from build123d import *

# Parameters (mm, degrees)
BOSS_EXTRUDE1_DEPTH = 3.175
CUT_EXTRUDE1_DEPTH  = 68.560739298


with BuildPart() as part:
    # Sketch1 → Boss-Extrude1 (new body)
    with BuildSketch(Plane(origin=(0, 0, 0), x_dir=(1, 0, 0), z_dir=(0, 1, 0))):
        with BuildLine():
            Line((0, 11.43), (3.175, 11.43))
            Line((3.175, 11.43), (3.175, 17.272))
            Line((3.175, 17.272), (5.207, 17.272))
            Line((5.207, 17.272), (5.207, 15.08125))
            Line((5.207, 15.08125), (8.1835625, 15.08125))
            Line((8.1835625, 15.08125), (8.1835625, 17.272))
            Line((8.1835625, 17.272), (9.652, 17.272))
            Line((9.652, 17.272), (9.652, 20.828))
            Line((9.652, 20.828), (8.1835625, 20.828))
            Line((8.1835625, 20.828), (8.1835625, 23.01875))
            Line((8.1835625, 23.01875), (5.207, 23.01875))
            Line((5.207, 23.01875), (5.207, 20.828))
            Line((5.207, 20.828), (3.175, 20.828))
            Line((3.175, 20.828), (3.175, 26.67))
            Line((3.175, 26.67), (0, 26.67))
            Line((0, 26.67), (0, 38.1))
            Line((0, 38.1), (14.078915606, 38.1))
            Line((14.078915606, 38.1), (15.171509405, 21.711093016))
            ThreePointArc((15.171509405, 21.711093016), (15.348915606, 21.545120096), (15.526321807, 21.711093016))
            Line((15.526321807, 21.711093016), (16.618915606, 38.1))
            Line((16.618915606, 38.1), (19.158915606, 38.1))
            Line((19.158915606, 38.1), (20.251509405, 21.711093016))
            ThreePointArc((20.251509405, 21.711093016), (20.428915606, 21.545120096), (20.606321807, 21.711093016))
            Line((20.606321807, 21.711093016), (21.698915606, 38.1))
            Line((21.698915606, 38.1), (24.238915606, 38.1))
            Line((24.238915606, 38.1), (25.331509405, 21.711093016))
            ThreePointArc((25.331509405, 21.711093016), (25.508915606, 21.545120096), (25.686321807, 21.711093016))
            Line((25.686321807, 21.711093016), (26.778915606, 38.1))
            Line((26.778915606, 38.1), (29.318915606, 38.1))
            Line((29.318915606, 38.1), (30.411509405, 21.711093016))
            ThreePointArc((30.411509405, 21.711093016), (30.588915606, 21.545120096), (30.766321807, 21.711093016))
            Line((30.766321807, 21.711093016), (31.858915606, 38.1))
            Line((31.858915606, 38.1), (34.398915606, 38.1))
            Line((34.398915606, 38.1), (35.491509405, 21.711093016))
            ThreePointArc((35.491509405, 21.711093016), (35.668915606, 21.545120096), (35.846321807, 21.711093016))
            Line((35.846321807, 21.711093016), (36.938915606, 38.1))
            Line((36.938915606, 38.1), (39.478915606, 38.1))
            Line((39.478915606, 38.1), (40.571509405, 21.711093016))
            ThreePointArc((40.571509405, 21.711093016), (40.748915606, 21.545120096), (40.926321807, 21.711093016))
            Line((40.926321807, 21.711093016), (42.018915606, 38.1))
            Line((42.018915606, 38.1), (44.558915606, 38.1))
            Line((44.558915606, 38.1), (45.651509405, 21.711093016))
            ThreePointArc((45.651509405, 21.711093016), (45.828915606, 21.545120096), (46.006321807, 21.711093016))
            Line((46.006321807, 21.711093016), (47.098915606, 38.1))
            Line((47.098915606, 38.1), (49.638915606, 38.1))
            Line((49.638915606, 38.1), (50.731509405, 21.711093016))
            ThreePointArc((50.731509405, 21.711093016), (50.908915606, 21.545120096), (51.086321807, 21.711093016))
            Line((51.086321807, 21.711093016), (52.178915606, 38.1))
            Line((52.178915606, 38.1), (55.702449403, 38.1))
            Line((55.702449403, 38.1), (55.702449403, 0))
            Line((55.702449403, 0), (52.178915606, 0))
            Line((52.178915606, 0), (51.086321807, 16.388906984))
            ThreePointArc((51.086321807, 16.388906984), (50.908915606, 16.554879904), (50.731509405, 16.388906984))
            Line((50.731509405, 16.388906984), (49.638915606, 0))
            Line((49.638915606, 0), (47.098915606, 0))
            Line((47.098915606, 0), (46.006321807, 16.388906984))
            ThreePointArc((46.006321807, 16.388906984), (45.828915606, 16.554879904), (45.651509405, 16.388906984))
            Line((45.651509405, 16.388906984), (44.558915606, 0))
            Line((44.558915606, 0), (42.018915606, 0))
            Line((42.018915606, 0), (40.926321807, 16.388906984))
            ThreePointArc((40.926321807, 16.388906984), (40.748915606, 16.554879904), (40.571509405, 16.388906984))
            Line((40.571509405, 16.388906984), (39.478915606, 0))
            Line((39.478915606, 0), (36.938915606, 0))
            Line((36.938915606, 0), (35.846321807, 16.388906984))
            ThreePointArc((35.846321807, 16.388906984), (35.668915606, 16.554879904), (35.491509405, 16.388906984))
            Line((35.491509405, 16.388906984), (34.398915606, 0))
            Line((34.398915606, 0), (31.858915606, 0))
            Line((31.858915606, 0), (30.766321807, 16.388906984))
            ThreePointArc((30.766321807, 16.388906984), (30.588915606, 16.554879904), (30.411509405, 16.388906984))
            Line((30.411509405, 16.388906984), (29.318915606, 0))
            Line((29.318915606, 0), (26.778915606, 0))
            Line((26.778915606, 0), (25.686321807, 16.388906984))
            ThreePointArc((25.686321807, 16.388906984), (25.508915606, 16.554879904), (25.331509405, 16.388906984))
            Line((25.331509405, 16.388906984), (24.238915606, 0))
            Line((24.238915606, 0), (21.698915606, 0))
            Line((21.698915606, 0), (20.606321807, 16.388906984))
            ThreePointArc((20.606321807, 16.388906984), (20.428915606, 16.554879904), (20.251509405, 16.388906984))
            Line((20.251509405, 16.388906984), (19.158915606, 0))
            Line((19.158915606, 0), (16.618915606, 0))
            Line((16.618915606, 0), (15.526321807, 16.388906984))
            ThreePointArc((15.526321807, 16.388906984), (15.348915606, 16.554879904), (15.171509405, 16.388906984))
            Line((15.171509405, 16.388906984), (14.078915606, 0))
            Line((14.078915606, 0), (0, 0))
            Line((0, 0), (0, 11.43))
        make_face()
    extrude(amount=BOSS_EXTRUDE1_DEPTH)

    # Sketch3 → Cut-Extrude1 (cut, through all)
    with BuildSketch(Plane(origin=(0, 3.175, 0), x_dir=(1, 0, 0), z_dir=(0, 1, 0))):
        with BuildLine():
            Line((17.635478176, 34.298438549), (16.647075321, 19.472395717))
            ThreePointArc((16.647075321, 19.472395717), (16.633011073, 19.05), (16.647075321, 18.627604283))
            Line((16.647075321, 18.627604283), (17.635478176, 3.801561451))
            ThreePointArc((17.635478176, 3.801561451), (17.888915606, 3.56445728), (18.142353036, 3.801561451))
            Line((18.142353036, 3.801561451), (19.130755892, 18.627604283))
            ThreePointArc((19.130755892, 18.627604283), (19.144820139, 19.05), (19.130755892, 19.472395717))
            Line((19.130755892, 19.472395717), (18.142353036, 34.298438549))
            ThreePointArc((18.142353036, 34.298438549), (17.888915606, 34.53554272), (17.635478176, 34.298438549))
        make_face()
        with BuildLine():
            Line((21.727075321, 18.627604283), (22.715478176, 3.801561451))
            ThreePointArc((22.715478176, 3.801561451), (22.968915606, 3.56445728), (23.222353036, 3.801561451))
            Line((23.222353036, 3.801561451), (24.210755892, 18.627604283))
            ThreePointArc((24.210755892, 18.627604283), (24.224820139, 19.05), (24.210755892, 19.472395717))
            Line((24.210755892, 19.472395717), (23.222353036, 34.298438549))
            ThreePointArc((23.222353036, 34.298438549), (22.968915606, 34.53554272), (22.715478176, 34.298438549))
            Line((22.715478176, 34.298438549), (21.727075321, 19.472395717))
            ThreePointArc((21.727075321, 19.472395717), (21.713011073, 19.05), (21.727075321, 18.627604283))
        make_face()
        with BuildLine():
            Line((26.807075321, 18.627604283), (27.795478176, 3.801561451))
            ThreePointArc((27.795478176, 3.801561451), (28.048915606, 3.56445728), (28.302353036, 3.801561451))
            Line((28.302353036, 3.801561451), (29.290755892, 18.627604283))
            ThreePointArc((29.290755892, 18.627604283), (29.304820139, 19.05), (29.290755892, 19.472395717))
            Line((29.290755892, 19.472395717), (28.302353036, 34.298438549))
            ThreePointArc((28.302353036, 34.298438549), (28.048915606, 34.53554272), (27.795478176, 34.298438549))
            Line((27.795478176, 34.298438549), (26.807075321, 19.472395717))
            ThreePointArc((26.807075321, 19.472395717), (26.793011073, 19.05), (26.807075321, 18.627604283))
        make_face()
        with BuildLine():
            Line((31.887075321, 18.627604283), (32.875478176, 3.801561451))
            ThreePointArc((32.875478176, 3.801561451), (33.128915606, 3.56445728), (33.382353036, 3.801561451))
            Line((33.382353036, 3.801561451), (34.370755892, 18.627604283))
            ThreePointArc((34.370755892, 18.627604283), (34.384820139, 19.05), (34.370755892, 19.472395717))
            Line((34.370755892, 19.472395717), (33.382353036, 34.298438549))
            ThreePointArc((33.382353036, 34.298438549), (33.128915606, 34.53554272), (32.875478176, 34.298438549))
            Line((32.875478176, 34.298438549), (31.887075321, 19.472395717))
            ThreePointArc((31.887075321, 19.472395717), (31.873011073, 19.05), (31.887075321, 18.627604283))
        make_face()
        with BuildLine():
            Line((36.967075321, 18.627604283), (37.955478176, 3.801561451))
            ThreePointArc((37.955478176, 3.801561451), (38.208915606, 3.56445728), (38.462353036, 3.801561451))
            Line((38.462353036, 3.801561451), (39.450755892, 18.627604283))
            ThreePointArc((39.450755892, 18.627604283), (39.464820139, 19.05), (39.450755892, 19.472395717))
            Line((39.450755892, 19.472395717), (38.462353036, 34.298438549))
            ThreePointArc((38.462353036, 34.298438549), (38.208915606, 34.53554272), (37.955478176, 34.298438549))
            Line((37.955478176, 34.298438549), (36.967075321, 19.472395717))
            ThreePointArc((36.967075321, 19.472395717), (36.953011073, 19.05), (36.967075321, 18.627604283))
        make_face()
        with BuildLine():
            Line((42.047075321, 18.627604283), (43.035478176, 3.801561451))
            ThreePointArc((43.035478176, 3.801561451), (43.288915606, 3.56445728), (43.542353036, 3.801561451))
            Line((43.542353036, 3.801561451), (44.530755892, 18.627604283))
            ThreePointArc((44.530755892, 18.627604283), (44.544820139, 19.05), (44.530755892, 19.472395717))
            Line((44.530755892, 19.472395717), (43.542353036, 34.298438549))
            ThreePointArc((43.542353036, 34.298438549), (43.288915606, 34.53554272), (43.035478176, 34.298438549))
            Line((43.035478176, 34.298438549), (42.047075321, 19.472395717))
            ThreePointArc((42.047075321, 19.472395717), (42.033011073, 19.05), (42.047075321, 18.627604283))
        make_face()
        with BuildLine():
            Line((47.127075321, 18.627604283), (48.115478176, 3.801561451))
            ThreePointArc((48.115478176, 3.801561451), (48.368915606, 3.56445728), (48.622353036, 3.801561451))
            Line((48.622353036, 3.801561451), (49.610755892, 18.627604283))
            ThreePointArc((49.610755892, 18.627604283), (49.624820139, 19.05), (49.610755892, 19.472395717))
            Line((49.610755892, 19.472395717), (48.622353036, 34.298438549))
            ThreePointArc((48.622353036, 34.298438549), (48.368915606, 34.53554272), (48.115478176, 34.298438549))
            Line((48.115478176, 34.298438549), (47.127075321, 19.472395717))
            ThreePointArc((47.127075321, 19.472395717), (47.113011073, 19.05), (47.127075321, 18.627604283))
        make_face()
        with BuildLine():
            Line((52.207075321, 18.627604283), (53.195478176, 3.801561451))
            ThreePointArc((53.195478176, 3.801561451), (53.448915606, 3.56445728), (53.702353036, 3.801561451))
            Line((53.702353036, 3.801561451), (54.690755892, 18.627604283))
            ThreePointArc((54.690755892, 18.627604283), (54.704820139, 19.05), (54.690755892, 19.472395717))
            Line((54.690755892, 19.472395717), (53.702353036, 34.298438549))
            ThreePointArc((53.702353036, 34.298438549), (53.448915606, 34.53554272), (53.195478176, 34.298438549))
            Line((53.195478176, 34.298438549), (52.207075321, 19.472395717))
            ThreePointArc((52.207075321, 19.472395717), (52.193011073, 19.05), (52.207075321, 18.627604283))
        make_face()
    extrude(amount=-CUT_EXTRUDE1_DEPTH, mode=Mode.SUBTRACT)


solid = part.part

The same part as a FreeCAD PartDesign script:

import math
import FreeCAD as App
import Part
import Sketcher
from FreeCAD import Vector
Q = App.Units.Quantity

doc = App.newDocument("Part")
body = doc.addObject("PartDesign::Body", "Body")

# Sketch on XZ plane
sketch1 = doc.addObject("Sketcher::SketchObject", "Sketch")
body.addObject(sketch1)
sketch1.AttachmentSupport = (doc.XZ_Plane, [""])
sketch1.MapMode = "FlatFace"
sketch1.addGeometry([
    Part.LineSegment(Vector(3.17, -11.43, 0), Vector(0, -11.43, 0)),  # 0
    Part.LineSegment(Vector(0, -11.43, 0), Vector(0, 0, 0)),  # 1
    Part.LineSegment(Vector(0, 0, 0), Vector(14.08, 0, 0)),  # 2
    Part.LineSegment(Vector(14.08, 0, 0), Vector(15.17, -16.39, 0)),  # 3
    Part.ArcOfCircle(Part.Circle(Vector(15.35, -16.38, 0), Vector(0, 0, 1), 0.18), math.radians(-176), math.radians(-4)),  # 4
    Part.LineSegment(Vector(15.53, -16.39, 0), Vector(16.62, 0, 0)),  # 5
    Part.LineSegment(Vector(16.62, 0, 0), Vector(19.16, 0, 0)),  # 6
    Part.LineSegment(Vector(19.16, 0, 0), Vector(20.25, -16.39, 0)),  # 7
    Part.ArcOfCircle(Part.Circle(Vector(20.43, -16.38, 0), Vector(0, 0, 1), 0.18), math.radians(-176), math.radians(-4)),  # 8
    Part.LineSegment(Vector(20.61, -16.39, 0), Vector(21.7, 0, 0)),  # 9
    Part.LineSegment(Vector(21.7, 0, 0), Vector(24.24, 0, 0)),  # 10
    Part.LineSegment(Vector(24.24, 0, 0), Vector(25.33, -16.39, 0)),  # 11
    Part.ArcOfCircle(Part.Circle(Vector(25.51, -16.38, 0), Vector(0, 0, 1), 0.18), math.radians(-176), math.radians(-4)),  # 12
    Part.LineSegment(Vector(25.69, -16.39, 0), Vector(26.78, 0, 0)),  # 13
    Part.LineSegment(Vector(26.78, 0, 0), Vector(29.32, 0, 0)),  # 14
    Part.LineSegment(Vector(29.32, 0, 0), Vector(30.41, -16.39, 0)),  # 15
    Part.ArcOfCircle(Part.Circle(Vector(30.59, -16.38, 0), Vector(0, 0, 1), 0.18), math.radians(-176), math.radians(-4)),  # 16
    Part.LineSegment(Vector(30.77, -16.39, 0), Vector(31.86, 0, 0)),  # 17
    Part.LineSegment(Vector(31.86, 0, 0), Vector(34.4, 0, 0)),  # 18
    Part.LineSegment(Vector(34.4, 0, 0), Vector(35.49, -16.39, 0)),  # 19
    Part.ArcOfCircle(Part.Circle(Vector(35.67, -16.38, 0), Vector(0, 0, 1), 0.18), math.radians(-176), math.radians(-4)),  # 20
    Part.LineSegment(Vector(35.85, -16.39, 0), Vector(36.94, 0, 0)),  # 21
    Part.LineSegment(Vector(36.94, 0, 0), Vector(39.48, 0, 0)),  # 22
    Part.LineSegment(Vector(39.48, 0, 0), Vector(40.57, -16.39, 0)),  # 23
    Part.ArcOfCircle(Part.Circle(Vector(40.75, -16.38, 0), Vector(0, 0, 1), 0.18), math.radians(-176), math.radians(-4)),  # 24
    Part.LineSegment(Vector(40.93, -16.39, 0), Vector(42.02, 0, 0)),  # 25
    Part.LineSegment(Vector(42.02, 0, 0), Vector(44.56, 0, 0)),  # 26
    Part.LineSegment(Vector(44.56, 0, 0), Vector(45.65, -16.39, 0)),  # 27
    Part.ArcOfCircle(Part.Circle(Vector(45.83, -16.38, 0), Vector(0, 0, 1), 0.18), math.radians(-176), math.radians(-4)),  # 28
    Part.LineSegment(Vector(46.01, -16.39, 0), Vector(47.1, 0, 0)),  # 29
    Part.LineSegment(Vector(47.1, 0, 0), Vector(49.64, 0, 0)),  # 30
    Part.LineSegment(Vector(49.64, 0, 0), Vector(50.73, -16.39, 0)),  # 31
    Part.ArcOfCircle(Part.Circle(Vector(50.91, -16.38, 0), Vector(0, 0, 1), 0.18), math.radians(-176), math.radians(-4)),  # 32
    Part.LineSegment(Vector(51.09, -16.39, 0), Vector(52.18, 0, 0)),  # 33
    Part.LineSegment(Vector(52.18, 0, 0), Vector(55.7, 0, 0)),  # 34
    Part.LineSegment(Vector(55.7, 0, 0), Vector(55.7, -38.1, 0)),  # 35
    Part.LineSegment(Vector(55.7, -38.1, 0), Vector(52.18, -38.1, 0)),  # 36
    Part.LineSegment(Vector(52.18, -38.1, 0), Vector(51.09, -21.71, 0)),  # 37
    Part.ArcOfCircle(Part.Circle(Vector(50.91, -21.72, 0), Vector(0, 0, 1), 0.18), math.radians(4), math.radians(176)),  # 38
    Part.LineSegment(Vector(50.73, -21.71, 0), Vector(49.64, -38.1, 0)),  # 39
    Part.LineSegment(Vector(49.64, -38.1, 0), Vector(47.1, -38.1, 0)),  # 40
    Part.LineSegment(Vector(47.1, -38.1, 0), Vector(46.01, -21.71, 0)),  # 41
    Part.ArcOfCircle(Part.Circle(Vector(45.83, -21.72, 0), Vector(0, 0, 1), 0.18), math.radians(4), math.radians(176)),  # 42
    Part.LineSegment(Vector(45.65, -21.71, 0), Vector(44.56, -38.1, 0)),  # 43
    Part.LineSegment(Vector(44.56, -38.1, 0), Vector(42.02, -38.1, 0)),  # 44
    Part.LineSegment(Vector(42.02, -38.1, 0), Vector(40.93, -21.71, 0)),  # 45
    Part.ArcOfCircle(Part.Circle(Vector(40.75, -21.72, 0), Vector(0, 0, 1), 0.18), math.radians(4), math.radians(176)),  # 46
    Part.LineSegment(Vector(40.57, -21.71, 0), Vector(39.48, -38.1, 0)),  # 47
    Part.LineSegment(Vector(39.48, -38.1, 0), Vector(36.94, -38.1, 0)),  # 48
    Part.LineSegment(Vector(36.94, -38.1, 0), Vector(35.85, -21.71, 0)),  # 49
    Part.ArcOfCircle(Part.Circle(Vector(35.67, -21.72, 0), Vector(0, 0, 1), 0.18), math.radians(4), math.radians(176)),  # 50
    Part.LineSegment(Vector(35.49, -21.71, 0), Vector(34.4, -38.1, 0)),  # 51
    Part.LineSegment(Vector(34.4, -38.1, 0), Vector(31.86, -38.1, 0)),  # 52
    Part.LineSegment(Vector(31.86, -38.1, 0), Vector(30.77, -21.71, 0)),  # 53
    Part.ArcOfCircle(Part.Circle(Vector(30.59, -21.72, 0), Vector(0, 0, 1), 0.18), math.radians(4), math.radians(176)),  # 54
    Part.LineSegment(Vector(30.41, -21.71, 0), Vector(29.32, -38.1, 0)),  # 55
    Part.LineSegment(Vector(29.32, -38.1, 0), Vector(26.78, -38.1, 0)),  # 56
    Part.LineSegment(Vector(26.78, -38.1, 0), Vector(25.69, -21.71, 0)),  # 57
    Part.ArcOfCircle(Part.Circle(Vector(25.51, -21.72, 0), Vector(0, 0, 1), 0.18), math.radians(4), math.radians(176)),  # 58
    Part.LineSegment(Vector(25.33, -21.71, 0), Vector(24.24, -38.1, 0)),  # 59
    Part.LineSegment(Vector(24.24, -38.1, 0), Vector(21.7, -38.1, 0)),  # 60
    Part.LineSegment(Vector(21.7, -38.1, 0), Vector(20.61, -21.71, 0)),  # 61
    Part.ArcOfCircle(Part.Circle(Vector(20.43, -21.72, 0), Vector(0, 0, 1), 0.18), math.radians(4), math.radians(176)),  # 62
    Part.LineSegment(Vector(20.25, -21.71, 0), Vector(19.16, -38.1, 0)),  # 63
    Part.LineSegment(Vector(19.16, -38.1, 0), Vector(16.62, -38.1, 0)),  # 64
    Part.LineSegment(Vector(16.62, -38.1, 0), Vector(15.53, -21.71, 0)),  # 65
    Part.ArcOfCircle(Part.Circle(Vector(15.35, -21.72, 0), Vector(0, 0, 1), 0.18), math.radians(4), math.radians(176)),  # 66
    Part.LineSegment(Vector(15.17, -21.71, 0), Vector(14.08, -38.1, 0)),  # 67
    Part.LineSegment(Vector(14.08, -38.1, 0), Vector(0, -38.1, 0)),  # 68
    Part.LineSegment(Vector(0, -38.1, 0), Vector(0, -26.67, 0)),  # 69
    Part.LineSegment(Vector(0, -26.67, 0), Vector(3.17, -26.67, 0)),  # 70
    Part.LineSegment(Vector(3.17, -26.67, 0), Vector(3.17, -20.83, 0)),  # 71
    Part.LineSegment(Vector(3.17, -20.83, 0), Vector(5.21, -20.83, 0)),  # 72
    Part.LineSegment(Vector(5.21, -20.83, 0), Vector(5.21, -23.02, 0)),  # 73
    Part.LineSegment(Vector(5.21, -23.02, 0), Vector(8.18, -23.02, 0)),  # 74
    Part.LineSegment(Vector(8.18, -23.02, 0), Vector(8.18, -20.83, 0)),  # 75
    Part.LineSegment(Vector(8.18, -20.83, 0), Vector(9.65, -20.83, 0)),  # 76
    Part.LineSegment(Vector(9.65, -20.83, 0), Vector(9.65, -17.27, 0)),  # 77
    Part.LineSegment(Vector(9.65, -17.27, 0), Vector(8.18, -17.27, 0)),  # 78
    Part.LineSegment(Vector(8.18, -17.27, 0), Vector(8.18, -15.08, 0)),  # 79
    Part.LineSegment(Vector(8.18, -15.08, 0), Vector(5.21, -15.08, 0)),  # 80
    Part.LineSegment(Vector(5.21, -15.08, 0), Vector(5.21, -17.27, 0)),  # 81
    Part.LineSegment(Vector(5.21, -17.27, 0), Vector(3.17, -17.27, 0)),  # 82
    Part.LineSegment(Vector(3.17, -17.27, 0), Vector(3.17, -11.43, 0)),  # 83
], False)
sketch1.addConstraint([
    Sketcher.Constraint("Coincident", 0, 2, 1, 1),
    Sketcher.Constraint("Coincident", 1, 2, 2, 1),
    Sketcher.Constraint("Coincident", 2, 2, 3, 1),
    Sketcher.Constraint("Tangent", 3, 2, 4, 1),
    Sketcher.Constraint("Tangent", 4, 2, 5, 1),
    Sketcher.Constraint("Coincident", 5, 2, 6, 1),
    Sketcher.Constraint("Coincident", 6, 2, 7, 1),
    Sketcher.Constraint("Tangent", 7, 2, 8, 1),
    Sketcher.Constraint("Tangent", 8, 2, 9, 1),
    Sketcher.Constraint("Coincident", 9, 2, 10, 1),
    Sketcher.Constraint("Coincident", 10, 2, 11, 1),
    Sketcher.Constraint("Tangent", 11, 2, 12, 1),
    Sketcher.Constraint("Tangent", 12, 2, 13, 1),
    Sketcher.Constraint("Coincident", 13, 2, 14, 1),
    Sketcher.Constraint("Coincident", 14, 2, 15, 1),
    Sketcher.Constraint("Tangent", 15, 2, 16, 1),
    Sketcher.Constraint("Tangent", 16, 2, 17, 1),
    Sketcher.Constraint("Coincident", 17, 2, 18, 1),
    Sketcher.Constraint("Coincident", 18, 2, 19, 1),
    Sketcher.Constraint("Tangent", 19, 2, 20, 1),
    Sketcher.Constraint("Tangent", 20, 2, 21, 1),
    Sketcher.Constraint("Coincident", 21, 2, 22, 1),
    Sketcher.Constraint("Coincident", 22, 2, 23, 1),
    Sketcher.Constraint("Tangent", 23, 2, 24, 1),
    Sketcher.Constraint("Tangent", 24, 2, 25, 1),
    Sketcher.Constraint("Coincident", 25, 2, 26, 1),
    Sketcher.Constraint("Coincident", 26, 2, 27, 1),
    Sketcher.Constraint("Tangent", 27, 2, 28, 1),
    Sketcher.Constraint("Tangent", 28, 2, 29, 1),
    Sketcher.Constraint("Coincident", 29, 2, 30, 1),
    Sketcher.Constraint("Coincident", 30, 2, 31, 1),
    Sketcher.Constraint("Tangent", 31, 2, 32, 1),
    Sketcher.Constraint("Tangent", 32, 2, 33, 1),
    Sketcher.Constraint("Coincident", 33, 2, 34, 1),
    Sketcher.Constraint("Coincident", 34, 2, 35, 1),
    Sketcher.Constraint("Coincident", 35, 2, 36, 1),
    Sketcher.Constraint("Coincident", 36, 2, 37, 1),
    Sketcher.Constraint("Tangent", 37, 2, 38, 1),
    Sketcher.Constraint("Tangent", 38, 2, 39, 1),
    Sketcher.Constraint("Coincident", 39, 2, 40, 1),
    Sketcher.Constraint("Coincident", 40, 2, 41, 1),
    Sketcher.Constraint("Tangent", 41, 2, 42, 1),
    Sketcher.Constraint("Tangent", 42, 2, 43, 1),
    Sketcher.Constraint("Coincident", 43, 2, 44, 1),
    Sketcher.Constraint("Coincident", 44, 2, 45, 1),
    Sketcher.Constraint("Tangent", 45, 2, 46, 1),
    Sketcher.Constraint("Tangent", 46, 2, 47, 1),
    Sketcher.Constraint("Coincident", 47, 2, 48, 1),
    Sketcher.Constraint("Coincident", 48, 2, 49, 1),
    Sketcher.Constraint("Tangent", 49, 2, 50, 1),
    Sketcher.Constraint("Tangent", 50, 2, 51, 1),
    Sketcher.Constraint("Coincident", 51, 2, 52, 1),
    Sketcher.Constraint("Coincident", 52, 2, 53, 1),
    Sketcher.Constraint("Tangent", 53, 2, 54, 1),
    Sketcher.Constraint("Tangent", 54, 2, 55, 1),
    Sketcher.Constraint("Coincident", 55, 2, 56, 1),
    Sketcher.Constraint("Coincident", 56, 2, 57, 1),
    Sketcher.Constraint("Tangent", 57, 2, 58, 1),
    Sketcher.Constraint("Tangent", 58, 2, 59, 1),
    Sketcher.Constraint("Coincident", 59, 2, 60, 1),
    Sketcher.Constraint("Coincident", 60, 2, 61, 1),
    Sketcher.Constraint("Tangent", 61, 2, 62, 1),
    Sketcher.Constraint("Tangent", 62, 2, 63, 1),
    Sketcher.Constraint("Coincident", 63, 2, 64, 1),
    Sketcher.Constraint("Coincident", 64, 2, 65, 1),
    Sketcher.Constraint("Tangent", 65, 2, 66, 1),
    Sketcher.Constraint("Tangent", 66, 2, 67, 1),
    Sketcher.Constraint("Coincident", 67, 2, 68, 1),
    Sketcher.Constraint("Coincident", 68, 2, 69, 1),
    Sketcher.Constraint("Coincident", 69, 2, 70, 1),
    Sketcher.Constraint("Coincident", 70, 2, 71, 1),
    Sketcher.Constraint("Coincident", 71, 2, 72, 1),
    Sketcher.Constraint("Coincident", 72, 2, 73, 1),
    Sketcher.Constraint("Coincident", 73, 2, 74, 1),
    Sketcher.Constraint("Coincident", 74, 2, 75, 1),
    Sketcher.Constraint("Coincident", 75, 2, 76, 1),
    Sketcher.Constraint("Coincident", 76, 2, 77, 1),
    Sketcher.Constraint("Coincident", 77, 2, 78, 1),
    Sketcher.Constraint("Coincident", 78, 2, 79, 1),
    Sketcher.Constraint("Coincident", 79, 2, 80, 1),
    Sketcher.Constraint("Coincident", 80, 2, 81, 1),
    Sketcher.Constraint("Coincident", 81, 2, 82, 1),
    Sketcher.Constraint("Coincident", 82, 2, 83, 1),
    Sketcher.Constraint("Coincident", 83, 2, 0, 1),
    Sketcher.Constraint("Horizontal", 0),
    Sketcher.Constraint("Vertical", 1),
    Sketcher.Constraint("Horizontal", 2),
    Sketcher.Constraint("Horizontal", 6),
    Sketcher.Constraint("Horizontal", 10),
    Sketcher.Constraint("Horizontal", 14),
    Sketcher.Constraint("Horizontal", 18),
    Sketcher.Constraint("Horizontal", 22),
    Sketcher.Constraint("Horizontal", 26),
    Sketcher.Constraint("Horizontal", 30),
    Sketcher.Constraint("Horizontal", 34),
    Sketcher.Constraint("Vertical", 35),
    Sketcher.Constraint("Horizontal", 36),
    Sketcher.Constraint("Horizontal", 40),
    Sketcher.Constraint("Horizontal", 44),
    Sketcher.Constraint("Horizontal", 48),
    Sketcher.Constraint("Horizontal", 52),
    Sketcher.Constraint("Horizontal", 56),
    Sketcher.Constraint("Horizontal", 60),
    Sketcher.Constraint("Horizontal", 64),
    Sketcher.Constraint("Horizontal", 68),
    Sketcher.Constraint("Vertical", 69),
    Sketcher.Constraint("Horizontal", 70),
    Sketcher.Constraint("Vertical", 71),
    Sketcher.Constraint("Horizontal", 72),
    Sketcher.Constraint("Vertical", 73),
    Sketcher.Constraint("Horizontal", 74),
    Sketcher.Constraint("Vertical", 75),
    Sketcher.Constraint("Horizontal", 76),
    Sketcher.Constraint("Vertical", 77),
    Sketcher.Constraint("Horizontal", 78),
    Sketcher.Constraint("Vertical", 79),
    Sketcher.Constraint("Horizontal", 80),
    Sketcher.Constraint("Vertical", 81),
    Sketcher.Constraint("Horizontal", 82),
    Sketcher.Constraint("Vertical", 83),
    Sketcher.Constraint("Coincident", 1, 2, -1, 1),
    Sketcher.Constraint("Equal", 4, 8),
    Sketcher.Constraint("Equal", 8, 12),
    Sketcher.Constraint("Equal", 12, 16),
    Sketcher.Constraint("Equal", 16, 20),
    Sketcher.Constraint("Equal", 20, 24),
    Sketcher.Constraint("Equal", 24, 28),
    Sketcher.Constraint("Equal", 28, 32),
    Sketcher.Constraint("Equal", 32, 38),
    Sketcher.Constraint("Equal", 38, 42),
    Sketcher.Constraint("Equal", 42, 46),
    Sketcher.Constraint("Equal", 46, 50),
    Sketcher.Constraint("Equal", 50, 54),
    Sketcher.Constraint("Equal", 54, 58),
    Sketcher.Constraint("Equal", 58, 62),
    Sketcher.Constraint("Equal", 62, 66),
    Sketcher.Constraint("PointOnObject", 5, 2, -1),
    Sketcher.Constraint("PointOnObject", 9, 2, -1),
    Sketcher.Constraint("PointOnObject", 13, 2, -1),
    Sketcher.Constraint("PointOnObject", 17, 2, -1),
    Sketcher.Constraint("PointOnObject", 21, 2, -1),
    Sketcher.Constraint("PointOnObject", 25, 2, -1),
    Sketcher.Constraint("PointOnObject", 29, 2, -1),
    Sketcher.Constraint("PointOnObject", 33, 2, -1),
    Sketcher.Constraint("PointOnObject", 68, 2, -2),
    Sketcher.Constraint("Parallel", 3, 7),
    Sketcher.Constraint("Parallel", 5, 9),
    Sketcher.Constraint("Parallel", 7, 11),
    Sketcher.Constraint("Parallel", 9, 13),
    Sketcher.Constraint("Parallel", 11, 15),
    Sketcher.Constraint("Parallel", 13, 17),
    Sketcher.Constraint("Parallel", 15, 19),
    Sketcher.Constraint("Parallel", 17, 21),
    Sketcher.Constraint("Parallel", 19, 23),
    Sketcher.Constraint("Parallel", 21, 25),
    Sketcher.Constraint("Parallel", 23, 27),
    Sketcher.Constraint("Parallel", 25, 29),
    Sketcher.Constraint("Parallel", 27, 31),
    Sketcher.Constraint("Parallel", 29, 33),
    Sketcher.Constraint("Parallel", 31, 37),
    Sketcher.Constraint("Parallel", 33, 39),
    Sketcher.Constraint("Parallel", 37, 41),
    Sketcher.Constraint("Parallel", 39, 43),
    Sketcher.Constraint("Parallel", 41, 45),
    Sketcher.Constraint("Parallel", 43, 47),
    Sketcher.Constraint("Parallel", 45, 49),
    Sketcher.Constraint("Parallel", 47, 51),
    Sketcher.Constraint("Parallel", 49, 53),
    Sketcher.Constraint("Parallel", 51, 55),
    Sketcher.Constraint("Parallel", 53, 57),
    Sketcher.Constraint("Parallel", 55, 59),
    Sketcher.Constraint("Parallel", 57, 61),
    Sketcher.Constraint("Parallel", 59, 63),
    Sketcher.Constraint("Parallel", 61, 65),
    Sketcher.Constraint("Parallel", 63, 67),
    Sketcher.Constraint("Horizontal", 4, 3, 8, 3),
    Sketcher.Constraint("Horizontal", 8, 3, 12, 3),
    Sketcher.Constraint("Horizontal", 12, 3, 16, 3),
    Sketcher.Constraint("Horizontal", 16, 3, 20, 3),
    Sketcher.Constraint("Horizontal", 20, 3, 24, 3),
    Sketcher.Constraint("Horizontal", 24, 3, 28, 3),
    Sketcher.Constraint("Horizontal", 28, 3, 32, 3),
    Sketcher.Constraint("Horizontal", 38, 3, 42, 3),
    Sketcher.Constraint("Horizontal", 42, 3, 46, 3),
    Sketcher.Constraint("Horizontal", 46, 3, 50, 3),
    Sketcher.Constraint("Horizontal", 50, 3, 54, 3),
    Sketcher.Constraint("Horizontal", 54, 3, 58, 3),
    Sketcher.Constraint("Horizontal", 58, 3, 62, 3),
    Sketcher.Constraint("Horizontal", 62, 3, 66, 3),
    Sketcher.Constraint("Horizontal", 3, 2, 4, 2),
    Sketcher.Constraint("Horizontal", 36, 2, 39, 2),
    Sketcher.Constraint("Horizontal", 40, 2, 43, 2),
    Sketcher.Constraint("Horizontal", 44, 2, 47, 2),
    Sketcher.Constraint("Horizontal", 48, 2, 51, 2),
    Sketcher.Constraint("Horizontal", 52, 2, 55, 2),
    Sketcher.Constraint("Horizontal", 56, 2, 59, 2),
    Sketcher.Constraint("Horizontal", 60, 2, 63, 2),
    Sketcher.Constraint("Horizontal", 64, 2, 67, 2),
    Sketcher.Constraint("Horizontal", 72, 2, 75, 2),
    Sketcher.Constraint("Horizontal", 78, 2, 81, 2),
    Sketcher.Constraint("Vertical", 32, 3, 38, 3),
    Sketcher.Constraint("Vertical", 28, 3, 42, 3),
    Sketcher.Constraint("Vertical", 24, 3, 46, 3),
    Sketcher.Constraint("Vertical", 20, 3, 50, 3),
    Sketcher.Constraint("Vertical", 16, 3, 54, 3),
    Sketcher.Constraint("Vertical", 12, 3, 58, 3),
    Sketcher.Constraint("Vertical", 8, 3, 62, 3),
    Sketcher.Constraint("Vertical", 4, 3, 66, 3),
    Sketcher.Constraint("Vertical", 33, 2, 36, 2),
    Sketcher.Constraint("Vertical", 75, 2, 78, 2),
    Sketcher.Constraint("Vertical", 73, 2, 80, 2),
    Sketcher.Constraint("Vertical", 71, 2, 82, 2),
    Sketcher.Constraint("Equal", 6, 10),
    Sketcher.Constraint("Equal", 10, 14),
    Sketcher.Constraint("Equal", 14, 18),
    Sketcher.Constraint("Equal", 18, 22),
    Sketcher.Constraint("Equal", 22, 26),
    Sketcher.Constraint("Equal", 26, 30),
    Sketcher.Constraint("Equal", 1, 69),
    Sketcher.Constraint("Equal", 75, 79),
    Sketcher.Constraint("Equal", 71, 83),
    Sketcher.Constraint("DistanceX", 6, 1, 6, 2, Q("0.1 in")),
    Sketcher.Constraint("DistanceY", 35, 2, 35, 1, Q("1.5 in")),
    Sketcher.Constraint("Radius", 4, Q("0.007 in")),
    Sketcher.Constraint("DistanceX", 72, 1, 72, 2, Q("0.08 in")),
    Sketcher.Constraint("DistanceY", 1, 1, 1, 2, Q("0.45 in")),
    Sketcher.Constraint("DistanceY", 71, 1, 71, 2, Q("0.23 in")),
    Sketcher.Constraint("DistanceX", 0, 2, 0, 1, Q("0.125 in")),
    Sketcher.Constraint("DistanceX", -1, 1, 76, 2, Q("0.38 in")),
    Sketcher.Constraint("DistanceY", 73, 2, -1, 1, Q("0.90625 in")),
    Sketcher.Constraint("DistanceX", 2, 1, 2, 2, Q("14.078916 mm")),
    Sketcher.Constraint("DistanceX", 34, 1, 34, 2, Q("3.523534 mm")),
    Sketcher.Constraint("DistanceX", 74, 1, 74, 2, Q("2.976563 mm")),
    Sketcher.Constraint("DistanceY", 4, 3, -1, 1, Q("16.37708 mm")),
    Sketcher.Constraint("DistanceX", -1, 1, 3, 2, Q("15.171509 mm")),
])
pad1 = doc.addObject("PartDesign::Pad", "Pad")
body.addObject(pad1)
pad1.Profile = sketch1
pad1.Length = Q("0.125 in")
pad1.Reversed = True

# Sketch on XZ plane
sketch2 = doc.addObject("Sketcher::SketchObject", "Sketch001")
body.addObject(sketch2)
sketch2.AttachmentSupport = (doc.XZ_Plane, [""])
sketch2.MapMode = "FlatFace"
sketch2.AttachmentOffset = App.Placement(Vector(0, 0, -0.125 * 25.4), App.Rotation())
sketch2.addGeometry([
    Part.LineSegment(Vector(17.64, -34.3, 0), Vector(16.65, -19.47, 0)),  # 0
    Part.ArcOfCircle(Part.Circle(Vector(22.98, -19.05, 0), Vector(0, 0, 1), 6.35), math.radians(176.19), math.radians(183.81)),  # 1
    Part.LineSegment(Vector(16.65, -18.63, 0), Vector(17.64, -3.8, 0)),  # 2
    Part.ArcOfCircle(Part.Circle(Vector(17.89, -3.82, 0), Vector(0, 0, 1), 0.25), math.radians(4), math.radians(176)),  # 3
    Part.LineSegment(Vector(18.14, -3.8, 0), Vector(19.13, -18.63, 0)),  # 4
    Part.ArcOfCircle(Part.Circle(Vector(12.79, -19.05, 0), Vector(0, 0, 1), 6.35), math.radians(-3.81), math.radians(3.81)),  # 5
    Part.LineSegment(Vector(19.13, -19.47, 0), Vector(18.14, -34.3, 0)),  # 6
    Part.ArcOfCircle(Part.Circle(Vector(17.89, -34.28, 0), Vector(0, 0, 1), 0.25), math.radians(-176), math.radians(-4)),  # 7
    Part.LineSegment(Vector(21.73, -18.63, 0), Vector(22.72, -3.8, 0)),  # 8
    Part.ArcOfCircle(Part.Circle(Vector(22.97, -3.82, 0), Vector(0, 0, 1), 0.25), math.radians(4), math.radians(176)),  # 9
    Part.LineSegment(Vector(23.22, -3.8, 0), Vector(24.21, -18.63, 0)),  # 10
    Part.ArcOfCircle(Part.Circle(Vector(17.87, -19.05, 0), Vector(0, 0, 1), 6.35), math.radians(-3.81), math.radians(3.81)),  # 11
    Part.LineSegment(Vector(24.21, -19.47, 0), Vector(23.22, -34.3, 0)),  # 12
    Part.ArcOfCircle(Part.Circle(Vector(22.97, -34.28, 0), Vector(0, 0, 1), 0.25), math.radians(-176), math.radians(-4)),  # 13
    Part.LineSegment(Vector(22.72, -34.3, 0), Vector(21.73, -19.47, 0)),  # 14
    Part.ArcOfCircle(Part.Circle(Vector(28.06, -19.05, 0), Vector(0, 0, 1), 6.35), math.radians(176.19), math.radians(183.81)),  # 15
    Part.LineSegment(Vector(26.81, -18.63, 0), Vector(27.8, -3.8, 0)),  # 16
    Part.ArcOfCircle(Part.Circle(Vector(28.05, -3.82, 0), Vector(0, 0, 1), 0.25), math.radians(4), math.radians(176)),  # 17
    Part.LineSegment(Vector(28.3, -3.8, 0), Vector(29.29, -18.63, 0)),  # 18
    Part.ArcOfCircle(Part.Circle(Vector(22.95, -19.05, 0), Vector(0, 0, 1), 6.35), math.radians(-3.81), math.radians(3.81)),  # 19
    Part.LineSegment(Vector(29.29, -19.47, 0), Vector(28.3, -34.3, 0)),  # 20
    Part.ArcOfCircle(Part.Circle(Vector(28.05, -34.28, 0), Vector(0, 0, 1), 0.25), math.radians(-176), math.radians(-4)),  # 21
    Part.LineSegment(Vector(27.8, -34.3, 0), Vector(26.81, -19.47, 0)),  # 22
    Part.ArcOfCircle(Part.Circle(Vector(33.14, -19.05, 0), Vector(0, 0, 1), 6.35), math.radians(176.19), math.radians(183.81)),  # 23
    Part.LineSegment(Vector(31.89, -18.63, 0), Vector(32.88, -3.8, 0)),  # 24
    Part.ArcOfCircle(Part.Circle(Vector(33.13, -3.82, 0), Vector(0, 0, 1), 0.25), math.radians(4), math.radians(176)),  # 25
    Part.LineSegment(Vector(33.38, -3.8, 0), Vector(34.37, -18.63, 0)),  # 26
    Part.ArcOfCircle(Part.Circle(Vector(28.03, -19.05, 0), Vector(0, 0, 1), 6.35), math.radians(-3.81), math.radians(3.81)),  # 27
    Part.LineSegment(Vector(34.37, -19.47, 0), Vector(33.38, -34.3, 0)),  # 28
    Part.ArcOfCircle(Part.Circle(Vector(33.13, -34.28, 0), Vector(0, 0, 1), 0.25), math.radians(-176), math.radians(-4)),  # 29
    Part.LineSegment(Vector(32.88, -34.3, 0), Vector(31.89, -19.47, 0)),  # 30
    Part.ArcOfCircle(Part.Circle(Vector(38.22, -19.05, 0), Vector(0, 0, 1), 6.35), math.radians(176.19), math.radians(183.81)),  # 31
    Part.LineSegment(Vector(36.97, -18.63, 0), Vector(37.96, -3.8, 0)),  # 32
    Part.ArcOfCircle(Part.Circle(Vector(38.21, -3.82, 0), Vector(0, 0, 1), 0.25), math.radians(4), math.radians(176)),  # 33
    Part.LineSegment(Vector(38.46, -3.8, 0), Vector(39.45, -18.63, 0)),  # 34
    Part.ArcOfCircle(Part.Circle(Vector(33.11, -19.05, 0), Vector(0, 0, 1), 6.35), math.radians(-3.81), math.radians(3.81)),  # 35
    Part.LineSegment(Vector(39.45, -19.47, 0), Vector(38.46, -34.3, 0)),  # 36
    Part.ArcOfCircle(Part.Circle(Vector(38.21, -34.28, 0), Vector(0, 0, 1), 0.25), math.radians(-176), math.radians(-4)),  # 37
    Part.LineSegment(Vector(37.96, -34.3, 0), Vector(36.97, -19.47, 0)),  # 38
    Part.ArcOfCircle(Part.Circle(Vector(43.3, -19.05, 0), Vector(0, 0, 1), 6.35), math.radians(176.19), math.radians(183.81)),  # 39
    Part.LineSegment(Vector(42.05, -18.63, 0), Vector(43.04, -3.8, 0)),  # 40
    Part.ArcOfCircle(Part.Circle(Vector(43.29, -3.82, 0), Vector(0, 0, 1), 0.25), math.radians(4), math.radians(176)),  # 41
    Part.LineSegment(Vector(43.54, -3.8, 0), Vector(44.53, -18.63, 0)),  # 42
    Part.ArcOfCircle(Part.Circle(Vector(38.19, -19.05, 0), Vector(0, 0, 1), 6.35), math.radians(-3.81), math.radians(3.81)),  # 43
    Part.LineSegment(Vector(44.53, -19.47, 0), Vector(43.54, -34.3, 0)),  # 44
    Part.ArcOfCircle(Part.Circle(Vector(43.29, -34.28, 0), Vector(0, 0, 1), 0.25), math.radians(-176), math.radians(-4)),  # 45
    Part.LineSegment(Vector(43.04, -34.3, 0), Vector(42.05, -19.47, 0)),  # 46
    Part.ArcOfCircle(Part.Circle(Vector(48.38, -19.05, 0), Vector(0, 0, 1), 6.35), math.radians(176.19), math.radians(183.81)),  # 47
    Part.LineSegment(Vector(47.13, -18.63, 0), Vector(48.12, -3.8, 0)),  # 48
    Part.ArcOfCircle(Part.Circle(Vector(48.37, -3.82, 0), Vector(0, 0, 1), 0.25), math.radians(4), math.radians(176)),  # 49
    Part.LineSegment(Vector(48.62, -3.8, 0), Vector(49.61, -18.63, 0)),  # 50
    Part.ArcOfCircle(Part.Circle(Vector(43.27, -19.05, 0), Vector(0, 0, 1), 6.35), math.radians(-3.81), math.radians(3.81)),  # 51
    Part.LineSegment(Vector(49.61, -19.47, 0), Vector(48.62, -34.3, 0)),  # 52
    Part.ArcOfCircle(Part.Circle(Vector(48.37, -34.28, 0), Vector(0, 0, 1), 0.25), math.radians(-176), math.radians(-4)),  # 53
    Part.LineSegment(Vector(48.12, -34.3, 0), Vector(47.13, -19.47, 0)),  # 54
    Part.ArcOfCircle(Part.Circle(Vector(53.46, -19.05, 0), Vector(0, 0, 1), 6.35), math.radians(176.19), math.radians(183.81)),  # 55
    Part.LineSegment(Vector(52.21, -18.63, 0), Vector(53.2, -3.8, 0)),  # 56
    Part.ArcOfCircle(Part.Circle(Vector(53.45, -3.82, 0), Vector(0, 0, 1), 0.25), math.radians(4), math.radians(176)),  # 57
    Part.LineSegment(Vector(53.7, -3.8, 0), Vector(54.69, -18.63, 0)),  # 58
    Part.ArcOfCircle(Part.Circle(Vector(48.35, -19.05, 0), Vector(0, 0, 1), 6.35), math.radians(-3.81), math.radians(3.81)),  # 59
    Part.LineSegment(Vector(54.69, -19.47, 0), Vector(53.7, -34.3, 0)),  # 60
    Part.ArcOfCircle(Part.Circle(Vector(53.45, -34.28, 0), Vector(0, 0, 1), 0.25), math.radians(-176), math.radians(-4)),  # 61
    Part.LineSegment(Vector(53.2, -34.3, 0), Vector(52.21, -19.47, 0)),  # 62
    Part.ArcOfCircle(Part.Circle(Vector(58.54, -19.05, 0), Vector(0, 0, 1), 6.35), math.radians(176.19), math.radians(183.81)),  # 63
], False)
sketch2.addConstraint([
    Sketcher.Constraint("Tangent", 0, 2, 1, 2),
    Sketcher.Constraint("Tangent", 1, 1, 2, 1),
    Sketcher.Constraint("Tangent", 2, 2, 3, 2),
    Sketcher.Constraint("Tangent", 3, 1, 4, 1),
    Sketcher.Constraint("Tangent", 4, 2, 5, 2),
    Sketcher.Constraint("Tangent", 5, 1, 6, 1),
    Sketcher.Constraint("Tangent", 6, 2, 7, 2),
    Sketcher.Constraint("Tangent", 7, 1, 0, 1),
    Sketcher.Constraint("Tangent", 8, 2, 9, 2),
    Sketcher.Constraint("Tangent", 9, 1, 10, 1),
    Sketcher.Constraint("Tangent", 10, 2, 11, 2),
    Sketcher.Constraint("Tangent", 11, 1, 12, 1),
    Sketcher.Constraint("Tangent", 12, 2, 13, 2),
    Sketcher.Constraint("Tangent", 13, 1, 14, 1),
    Sketcher.Constraint("Tangent", 14, 2, 15, 2),
    Sketcher.Constraint("Tangent", 15, 1, 8, 1),
    Sketcher.Constraint("Tangent", 16, 2, 17, 2),
    Sketcher.Constraint("Tangent", 17, 1, 18, 1),
    Sketcher.Constraint("Tangent", 18, 2, 19, 2),
    Sketcher.Constraint("Tangent", 19, 1, 20, 1),
    Sketcher.Constraint("Tangent", 20, 2, 21, 2),
    Sketcher.Constraint("Tangent", 21, 1, 22, 1),
    Sketcher.Constraint("Tangent", 22, 2, 23, 2),
    Sketcher.Constraint("Tangent", 23, 1, 16, 1),
    Sketcher.Constraint("Tangent", 24, 2, 25, 2),
    Sketcher.Constraint("Tangent", 25, 1, 26, 1),
    Sketcher.Constraint("Tangent", 26, 2, 27, 2),
    Sketcher.Constraint("Tangent", 27, 1, 28, 1),
    Sketcher.Constraint("Tangent", 28, 2, 29, 2),
    Sketcher.Constraint("Tangent", 29, 1, 30, 1),
    Sketcher.Constraint("Tangent", 30, 2, 31, 2),
    Sketcher.Constraint("Tangent", 31, 1, 24, 1),
    Sketcher.Constraint("Tangent", 32, 2, 33, 2),
    Sketcher.Constraint("Tangent", 33, 1, 34, 1),
    Sketcher.Constraint("Tangent", 34, 2, 35, 2),
    Sketcher.Constraint("Tangent", 35, 1, 36, 1),
    Sketcher.Constraint("Tangent", 36, 2, 37, 2),
    Sketcher.Constraint("Tangent", 37, 1, 38, 1),
    Sketcher.Constraint("Tangent", 38, 2, 39, 2),
    Sketcher.Constraint("Tangent", 39, 1, 32, 1),
    Sketcher.Constraint("Tangent", 40, 2, 41, 2),
    Sketcher.Constraint("Tangent", 41, 1, 42, 1),
    Sketcher.Constraint("Tangent", 42, 2, 43, 2),
    Sketcher.Constraint("Tangent", 43, 1, 44, 1),
    Sketcher.Constraint("Tangent", 44, 2, 45, 2),
    Sketcher.Constraint("Tangent", 45, 1, 46, 1),
    Sketcher.Constraint("Tangent", 46, 2, 47, 2),
    Sketcher.Constraint("Tangent", 47, 1, 40, 1),
    Sketcher.Constraint("Tangent", 48, 2, 49, 2),
    Sketcher.Constraint("Tangent", 49, 1, 50, 1),
    Sketcher.Constraint("Tangent", 50, 2, 51, 2),
    Sketcher.Constraint("Tangent", 51, 1, 52, 1),
    Sketcher.Constraint("Tangent", 52, 2, 53, 2),
    Sketcher.Constraint("Tangent", 53, 1, 54, 1),
    Sketcher.Constraint("Tangent", 54, 2, 55, 2),
    Sketcher.Constraint("Tangent", 55, 1, 48, 1),
    Sketcher.Constraint("Tangent", 56, 2, 57, 2),
    Sketcher.Constraint("Tangent", 57, 1, 58, 1),
    Sketcher.Constraint("Tangent", 58, 2, 59, 2),
    Sketcher.Constraint("Tangent", 59, 1, 60, 1),
    Sketcher.Constraint("Tangent", 60, 2, 61, 2),
    Sketcher.Constraint("Tangent", 61, 1, 62, 1),
    Sketcher.Constraint("Tangent", 62, 2, 63, 2),
    Sketcher.Constraint("Tangent", 63, 1, 56, 1),
    Sketcher.Constraint("Equal", 1, 5),
    Sketcher.Constraint("Equal", 3, 7),
    Sketcher.Constraint("Equal", 7, 9),
    Sketcher.Constraint("Equal", 5, 11),
    Sketcher.Constraint("Equal", 9, 13),
    Sketcher.Constraint("Equal", 11, 15),
    Sketcher.Constraint("Equal", 13, 17),
    Sketcher.Constraint("Equal", 15, 19),
    Sketcher.Constraint("Equal", 17, 21),
    Sketcher.Constraint("Equal", 19, 23),
    Sketcher.Constraint("Equal", 21, 25),
    Sketcher.Constraint("Equal", 23, 27),
    Sketcher.Constraint("Equal", 25, 29),
    Sketcher.Constraint("Equal", 27, 31),
    Sketcher.Constraint("Equal", 29, 33),
    Sketcher.Constraint("Equal", 31, 35),
    Sketcher.Constraint("Equal", 33, 37),
    Sketcher.Constraint("Equal", 35, 39),
    Sketcher.Constraint("Equal", 37, 41),
    Sketcher.Constraint("Equal", 39, 43),
    Sketcher.Constraint("Equal", 41, 45),
    Sketcher.Constraint("Equal", 43, 47),
    Sketcher.Constraint("Equal", 45, 49),
    Sketcher.Constraint("Equal", 47, 51),
    Sketcher.Constraint("Equal", 49, 53),
    Sketcher.Constraint("Equal", 51, 55),
    Sketcher.Constraint("Equal", 53, 57),
    Sketcher.Constraint("Equal", 55, 59),
    Sketcher.Constraint("Equal", 57, 61),
    Sketcher.Constraint("Equal", 59, 63),
    Sketcher.Constraint("Parallel", 0, 4),
    Sketcher.Constraint("Parallel", 2, 6),
    Sketcher.Constraint("Parallel", 6, 8),
    Sketcher.Constraint("Parallel", 4, 10),
    Sketcher.Constraint("Parallel", 8, 12),
    Sketcher.Constraint("Parallel", 10, 14),
    Sketcher.Constraint("Parallel", 12, 16),
    Sketcher.Constraint("Parallel", 14, 18),
    Sketcher.Constraint("Parallel", 16, 20),
    Sketcher.Constraint("Parallel", 18, 22),
    Sketcher.Constraint("Parallel", 20, 24),
    Sketcher.Constraint("Parallel", 22, 26),
    Sketcher.Constraint("Parallel", 24, 28),
    Sketcher.Constraint("Parallel", 26, 30),
    Sketcher.Constraint("Parallel", 28, 32),
    Sketcher.Constraint("Parallel", 30, 34),
    Sketcher.Constraint("Parallel", 32, 36),
    Sketcher.Constraint("Parallel", 34, 38),
    Sketcher.Constraint("Parallel", 36, 40),
    Sketcher.Constraint("Parallel", 38, 42),
    Sketcher.Constraint("Parallel", 40, 44),
    Sketcher.Constraint("Parallel", 42, 46),
    Sketcher.Constraint("Parallel", 44, 48),
    Sketcher.Constraint("Parallel", 46, 50),
    Sketcher.Constraint("Parallel", 48, 52),
    Sketcher.Constraint("Parallel", 50, 54),
    Sketcher.Constraint("Parallel", 52, 56),
    Sketcher.Constraint("Parallel", 54, 58),
    Sketcher.Constraint("Parallel", 56, 60),
    Sketcher.Constraint("Parallel", 58, 62),
    Sketcher.Constraint("Horizontal", 1, 3, 5, 3),
    Sketcher.Constraint("Horizontal", 3, 3, 9, 3),
    Sketcher.Constraint("Horizontal", 5, 3, 11, 3),
    Sketcher.Constraint("Horizontal", 7, 3, 13, 3),
    Sketcher.Constraint("Horizontal", 9, 3, 17, 3),
    Sketcher.Constraint("Horizontal", 15, 3, 19, 3),
    Sketcher.Constraint("Horizontal", 13, 3, 21, 3),
    Sketcher.Constraint("Horizontal", 17, 3, 25, 3),
    Sketcher.Constraint("Horizontal", 23, 3, 27, 3),
    Sketcher.Constraint("Horizontal", 21, 3, 29, 3),
    Sketcher.Constraint("Horizontal", 25, 3, 33, 3),
    Sketcher.Constraint("Horizontal", 31, 3, 35, 3),
    Sketcher.Constraint("Horizontal", 29, 3, 37, 3),
    Sketcher.Constraint("Horizontal", 33, 3, 41, 3),
    Sketcher.Constraint("Horizontal", 39, 3, 43, 3),
    Sketcher.Constraint("Horizontal", 37, 3, 45, 3),
    Sketcher.Constraint("Horizontal", 41, 3, 49, 3),
    Sketcher.Constraint("Horizontal", 47, 3, 51, 3),
    Sketcher.Constraint("Horizontal", 45, 3, 53, 3),
    Sketcher.Constraint("Horizontal", 49, 3, 57, 3),
    Sketcher.Constraint("Horizontal", 55, 3, 59, 3),
    Sketcher.Constraint("Horizontal", 53, 3, 61, 3),
    Sketcher.Constraint("Horizontal", 2, 2, 3, 1),
    Sketcher.Constraint("Radius", 1, Q("0.25 in")),
    Sketcher.Constraint("Radius", 3, Q("0.01 in")),
    Sketcher.Constraint("DistanceY", 1, 3, -1, 1, Q("0.75 in")),
    Sketcher.Constraint("DistanceX", -1, 1, 1, 3, Q("22.983011 mm")),
    Sketcher.Constraint("DistanceX", -1, 1, 5, 3, Q("12.79482 mm")),
    Sketcher.Constraint("DistanceX", -1, 1, 11, 3, Q("17.87482 mm")),
    Sketcher.Constraint("DistanceX", -1, 1, 19, 3, Q("22.95482 mm")),
    Sketcher.Constraint("DistanceX", -1, 1, 27, 3, Q("28.03482 mm")),
    Sketcher.Constraint("DistanceX", -1, 1, 35, 3, Q("33.11482 mm")),
    Sketcher.Constraint("DistanceX", -1, 1, 43, 3, Q("38.19482 mm")),
    Sketcher.Constraint("DistanceX", -1, 1, 51, 3, Q("43.27482 mm")),
    Sketcher.Constraint("DistanceX", -1, 1, 59, 3, Q("48.35482 mm")),
    Sketcher.Constraint("DistanceY", 2, 2, -1, 1, Q("3.801561 mm")),
])
pocket1 = doc.addObject("PartDesign::Pocket", "Pocket")
body.addObject(pocket1)
pocket1.Profile = sketch2
pocket1.Type = "ThroughAll"
pocket1.Reversed = True

doc.recompute()
